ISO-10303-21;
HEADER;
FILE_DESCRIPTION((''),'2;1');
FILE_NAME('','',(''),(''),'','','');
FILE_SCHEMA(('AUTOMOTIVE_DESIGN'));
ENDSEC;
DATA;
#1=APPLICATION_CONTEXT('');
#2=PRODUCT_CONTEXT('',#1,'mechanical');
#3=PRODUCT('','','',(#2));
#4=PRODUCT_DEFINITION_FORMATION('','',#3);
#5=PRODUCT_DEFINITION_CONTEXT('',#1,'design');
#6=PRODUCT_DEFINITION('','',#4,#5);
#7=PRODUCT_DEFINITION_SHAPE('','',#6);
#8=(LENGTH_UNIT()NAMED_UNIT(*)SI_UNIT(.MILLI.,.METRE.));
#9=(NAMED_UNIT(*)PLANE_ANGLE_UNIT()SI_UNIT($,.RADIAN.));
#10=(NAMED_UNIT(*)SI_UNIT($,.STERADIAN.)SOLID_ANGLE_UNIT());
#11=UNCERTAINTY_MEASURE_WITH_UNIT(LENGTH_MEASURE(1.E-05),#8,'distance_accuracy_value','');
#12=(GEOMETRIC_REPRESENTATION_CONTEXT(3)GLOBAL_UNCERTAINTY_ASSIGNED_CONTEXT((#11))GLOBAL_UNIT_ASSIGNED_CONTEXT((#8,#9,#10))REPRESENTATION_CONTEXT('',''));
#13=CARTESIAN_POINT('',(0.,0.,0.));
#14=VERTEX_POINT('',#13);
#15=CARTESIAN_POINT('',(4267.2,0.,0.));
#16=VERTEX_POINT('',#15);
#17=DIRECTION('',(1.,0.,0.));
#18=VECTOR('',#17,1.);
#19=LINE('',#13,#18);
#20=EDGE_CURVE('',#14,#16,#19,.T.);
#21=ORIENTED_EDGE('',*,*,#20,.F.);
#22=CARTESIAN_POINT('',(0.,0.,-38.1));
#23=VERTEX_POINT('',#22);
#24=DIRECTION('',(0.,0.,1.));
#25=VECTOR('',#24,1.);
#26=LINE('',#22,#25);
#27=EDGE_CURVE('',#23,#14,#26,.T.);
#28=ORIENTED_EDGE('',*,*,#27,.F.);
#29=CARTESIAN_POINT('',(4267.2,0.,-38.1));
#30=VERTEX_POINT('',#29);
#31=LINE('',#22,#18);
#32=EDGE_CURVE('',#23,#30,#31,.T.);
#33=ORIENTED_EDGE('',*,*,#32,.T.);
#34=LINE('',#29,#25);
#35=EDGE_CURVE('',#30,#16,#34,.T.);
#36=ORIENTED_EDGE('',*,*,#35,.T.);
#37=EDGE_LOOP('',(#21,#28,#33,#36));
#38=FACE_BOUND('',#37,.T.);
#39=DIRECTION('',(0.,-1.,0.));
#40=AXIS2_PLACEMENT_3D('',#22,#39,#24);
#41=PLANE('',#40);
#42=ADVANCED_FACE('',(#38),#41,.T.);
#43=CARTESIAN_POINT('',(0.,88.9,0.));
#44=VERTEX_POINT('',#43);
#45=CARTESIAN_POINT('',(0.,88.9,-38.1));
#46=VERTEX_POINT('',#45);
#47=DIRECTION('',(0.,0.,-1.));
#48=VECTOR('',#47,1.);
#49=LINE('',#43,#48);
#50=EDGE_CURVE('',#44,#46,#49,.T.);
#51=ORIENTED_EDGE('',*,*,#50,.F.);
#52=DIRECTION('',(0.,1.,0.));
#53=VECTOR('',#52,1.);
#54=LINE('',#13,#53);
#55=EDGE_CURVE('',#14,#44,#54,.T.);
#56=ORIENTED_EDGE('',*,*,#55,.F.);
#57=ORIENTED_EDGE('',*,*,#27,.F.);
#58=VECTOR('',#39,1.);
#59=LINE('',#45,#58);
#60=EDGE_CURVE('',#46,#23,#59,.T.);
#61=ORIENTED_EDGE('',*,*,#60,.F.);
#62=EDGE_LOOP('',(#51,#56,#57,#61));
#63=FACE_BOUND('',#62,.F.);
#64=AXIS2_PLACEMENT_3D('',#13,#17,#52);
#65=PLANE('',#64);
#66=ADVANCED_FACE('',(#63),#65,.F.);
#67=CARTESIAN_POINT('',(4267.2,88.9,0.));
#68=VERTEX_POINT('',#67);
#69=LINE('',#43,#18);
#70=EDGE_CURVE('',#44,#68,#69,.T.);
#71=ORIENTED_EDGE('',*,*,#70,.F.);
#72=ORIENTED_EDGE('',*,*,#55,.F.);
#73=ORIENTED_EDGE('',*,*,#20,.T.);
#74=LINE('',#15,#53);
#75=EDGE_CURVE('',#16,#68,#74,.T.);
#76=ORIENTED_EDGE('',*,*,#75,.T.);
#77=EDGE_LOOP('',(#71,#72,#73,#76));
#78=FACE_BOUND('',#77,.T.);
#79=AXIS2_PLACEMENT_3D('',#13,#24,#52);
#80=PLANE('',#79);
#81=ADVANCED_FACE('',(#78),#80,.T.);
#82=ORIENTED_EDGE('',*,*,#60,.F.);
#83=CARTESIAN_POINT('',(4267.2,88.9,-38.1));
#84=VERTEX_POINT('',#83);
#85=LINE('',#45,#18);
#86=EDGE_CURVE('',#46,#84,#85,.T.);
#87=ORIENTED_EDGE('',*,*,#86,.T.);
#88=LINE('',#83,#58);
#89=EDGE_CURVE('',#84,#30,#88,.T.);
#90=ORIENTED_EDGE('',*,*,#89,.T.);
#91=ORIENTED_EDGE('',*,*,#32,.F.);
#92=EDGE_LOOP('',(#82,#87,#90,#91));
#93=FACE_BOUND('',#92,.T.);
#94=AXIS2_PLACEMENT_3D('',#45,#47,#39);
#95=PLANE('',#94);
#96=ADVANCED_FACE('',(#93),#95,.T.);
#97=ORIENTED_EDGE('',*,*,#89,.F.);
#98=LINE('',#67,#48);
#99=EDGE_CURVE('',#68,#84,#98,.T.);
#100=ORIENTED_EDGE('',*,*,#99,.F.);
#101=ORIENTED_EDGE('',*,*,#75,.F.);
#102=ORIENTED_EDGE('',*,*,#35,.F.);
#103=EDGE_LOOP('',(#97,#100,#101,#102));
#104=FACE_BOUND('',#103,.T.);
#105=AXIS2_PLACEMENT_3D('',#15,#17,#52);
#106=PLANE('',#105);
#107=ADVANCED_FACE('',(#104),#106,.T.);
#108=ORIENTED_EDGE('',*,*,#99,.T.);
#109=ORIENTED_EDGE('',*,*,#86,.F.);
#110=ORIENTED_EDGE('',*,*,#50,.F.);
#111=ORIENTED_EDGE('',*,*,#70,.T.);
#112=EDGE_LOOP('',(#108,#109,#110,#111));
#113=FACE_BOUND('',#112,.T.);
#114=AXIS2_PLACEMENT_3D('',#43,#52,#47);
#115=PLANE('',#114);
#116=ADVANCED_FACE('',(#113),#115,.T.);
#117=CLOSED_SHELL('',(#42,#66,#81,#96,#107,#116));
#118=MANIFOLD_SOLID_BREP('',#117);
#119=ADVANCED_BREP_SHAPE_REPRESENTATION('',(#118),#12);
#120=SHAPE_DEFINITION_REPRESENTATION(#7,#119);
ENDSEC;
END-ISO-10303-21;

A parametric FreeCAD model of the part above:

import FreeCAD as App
import Part
import Sketcher

V = App.Vector
Q = App.Units.Quantity

doc = App.newDocument("Part")
body = doc.addObject("PartDesign::Body", "Body")

# Sketch on YZ plane
sketch1 = body.newObject("Sketcher::SketchObject", "Sketch")
sketch1.AttachmentSupport = (doc.getObject("YZ_Plane"), [""])
sketch1.MapMode = "FlatFace"
sketch1.addGeometry(Part.LineSegment(V(89, 0, 0), V(0, 0, 0)), False)
sketch1.addGeometry(Part.LineSegment(V(0, 0, 0), V(0, -38, 0)), False)
sketch1.addGeometry(Part.LineSegment(V(0, -38, 0), V(89, -38, 0)), False)
sketch1.addGeometry(Part.LineSegment(V(89, -38, 0), V(89, 0, 0)), False)
sketch1.addConstraint(Sketcher.Constraint("Coincident", 0, 2, 1, 1))
sketch1.addConstraint(Sketcher.Constraint("Coincident", 1, 2, 2, 1))
sketch1.addConstraint(Sketcher.Constraint("Coincident", 2, 2, 3, 1))
sketch1.addConstraint(Sketcher.Constraint("Coincident", 3, 2, 0, 1))
sketch1.addConstraint(Sketcher.Constraint("Horizontal", 0))
sketch1.addConstraint(Sketcher.Constraint("Vertical", 1))
sketch1.addConstraint(Sketcher.Constraint("Horizontal", 2))
sketch1.addConstraint(Sketcher.Constraint("Vertical", 3))
sketch1.addConstraint(Sketcher.Constraint("Coincident", 0, 2, -1, 1))
sketch1.addConstraint(Sketcher.Constraint("DistanceX", 0, 2, 0, 1, Q("3.5 in")))
sketch1.addConstraint(Sketcher.Constraint("DistanceY", 1, 2, 1, 1, Q("1.5 in")))
pad1 = body.newObject("PartDesign::Pad", "Pad")
pad1.Profile = sketch1
pad1.Length = Q("168 in")

doc.recompute()
